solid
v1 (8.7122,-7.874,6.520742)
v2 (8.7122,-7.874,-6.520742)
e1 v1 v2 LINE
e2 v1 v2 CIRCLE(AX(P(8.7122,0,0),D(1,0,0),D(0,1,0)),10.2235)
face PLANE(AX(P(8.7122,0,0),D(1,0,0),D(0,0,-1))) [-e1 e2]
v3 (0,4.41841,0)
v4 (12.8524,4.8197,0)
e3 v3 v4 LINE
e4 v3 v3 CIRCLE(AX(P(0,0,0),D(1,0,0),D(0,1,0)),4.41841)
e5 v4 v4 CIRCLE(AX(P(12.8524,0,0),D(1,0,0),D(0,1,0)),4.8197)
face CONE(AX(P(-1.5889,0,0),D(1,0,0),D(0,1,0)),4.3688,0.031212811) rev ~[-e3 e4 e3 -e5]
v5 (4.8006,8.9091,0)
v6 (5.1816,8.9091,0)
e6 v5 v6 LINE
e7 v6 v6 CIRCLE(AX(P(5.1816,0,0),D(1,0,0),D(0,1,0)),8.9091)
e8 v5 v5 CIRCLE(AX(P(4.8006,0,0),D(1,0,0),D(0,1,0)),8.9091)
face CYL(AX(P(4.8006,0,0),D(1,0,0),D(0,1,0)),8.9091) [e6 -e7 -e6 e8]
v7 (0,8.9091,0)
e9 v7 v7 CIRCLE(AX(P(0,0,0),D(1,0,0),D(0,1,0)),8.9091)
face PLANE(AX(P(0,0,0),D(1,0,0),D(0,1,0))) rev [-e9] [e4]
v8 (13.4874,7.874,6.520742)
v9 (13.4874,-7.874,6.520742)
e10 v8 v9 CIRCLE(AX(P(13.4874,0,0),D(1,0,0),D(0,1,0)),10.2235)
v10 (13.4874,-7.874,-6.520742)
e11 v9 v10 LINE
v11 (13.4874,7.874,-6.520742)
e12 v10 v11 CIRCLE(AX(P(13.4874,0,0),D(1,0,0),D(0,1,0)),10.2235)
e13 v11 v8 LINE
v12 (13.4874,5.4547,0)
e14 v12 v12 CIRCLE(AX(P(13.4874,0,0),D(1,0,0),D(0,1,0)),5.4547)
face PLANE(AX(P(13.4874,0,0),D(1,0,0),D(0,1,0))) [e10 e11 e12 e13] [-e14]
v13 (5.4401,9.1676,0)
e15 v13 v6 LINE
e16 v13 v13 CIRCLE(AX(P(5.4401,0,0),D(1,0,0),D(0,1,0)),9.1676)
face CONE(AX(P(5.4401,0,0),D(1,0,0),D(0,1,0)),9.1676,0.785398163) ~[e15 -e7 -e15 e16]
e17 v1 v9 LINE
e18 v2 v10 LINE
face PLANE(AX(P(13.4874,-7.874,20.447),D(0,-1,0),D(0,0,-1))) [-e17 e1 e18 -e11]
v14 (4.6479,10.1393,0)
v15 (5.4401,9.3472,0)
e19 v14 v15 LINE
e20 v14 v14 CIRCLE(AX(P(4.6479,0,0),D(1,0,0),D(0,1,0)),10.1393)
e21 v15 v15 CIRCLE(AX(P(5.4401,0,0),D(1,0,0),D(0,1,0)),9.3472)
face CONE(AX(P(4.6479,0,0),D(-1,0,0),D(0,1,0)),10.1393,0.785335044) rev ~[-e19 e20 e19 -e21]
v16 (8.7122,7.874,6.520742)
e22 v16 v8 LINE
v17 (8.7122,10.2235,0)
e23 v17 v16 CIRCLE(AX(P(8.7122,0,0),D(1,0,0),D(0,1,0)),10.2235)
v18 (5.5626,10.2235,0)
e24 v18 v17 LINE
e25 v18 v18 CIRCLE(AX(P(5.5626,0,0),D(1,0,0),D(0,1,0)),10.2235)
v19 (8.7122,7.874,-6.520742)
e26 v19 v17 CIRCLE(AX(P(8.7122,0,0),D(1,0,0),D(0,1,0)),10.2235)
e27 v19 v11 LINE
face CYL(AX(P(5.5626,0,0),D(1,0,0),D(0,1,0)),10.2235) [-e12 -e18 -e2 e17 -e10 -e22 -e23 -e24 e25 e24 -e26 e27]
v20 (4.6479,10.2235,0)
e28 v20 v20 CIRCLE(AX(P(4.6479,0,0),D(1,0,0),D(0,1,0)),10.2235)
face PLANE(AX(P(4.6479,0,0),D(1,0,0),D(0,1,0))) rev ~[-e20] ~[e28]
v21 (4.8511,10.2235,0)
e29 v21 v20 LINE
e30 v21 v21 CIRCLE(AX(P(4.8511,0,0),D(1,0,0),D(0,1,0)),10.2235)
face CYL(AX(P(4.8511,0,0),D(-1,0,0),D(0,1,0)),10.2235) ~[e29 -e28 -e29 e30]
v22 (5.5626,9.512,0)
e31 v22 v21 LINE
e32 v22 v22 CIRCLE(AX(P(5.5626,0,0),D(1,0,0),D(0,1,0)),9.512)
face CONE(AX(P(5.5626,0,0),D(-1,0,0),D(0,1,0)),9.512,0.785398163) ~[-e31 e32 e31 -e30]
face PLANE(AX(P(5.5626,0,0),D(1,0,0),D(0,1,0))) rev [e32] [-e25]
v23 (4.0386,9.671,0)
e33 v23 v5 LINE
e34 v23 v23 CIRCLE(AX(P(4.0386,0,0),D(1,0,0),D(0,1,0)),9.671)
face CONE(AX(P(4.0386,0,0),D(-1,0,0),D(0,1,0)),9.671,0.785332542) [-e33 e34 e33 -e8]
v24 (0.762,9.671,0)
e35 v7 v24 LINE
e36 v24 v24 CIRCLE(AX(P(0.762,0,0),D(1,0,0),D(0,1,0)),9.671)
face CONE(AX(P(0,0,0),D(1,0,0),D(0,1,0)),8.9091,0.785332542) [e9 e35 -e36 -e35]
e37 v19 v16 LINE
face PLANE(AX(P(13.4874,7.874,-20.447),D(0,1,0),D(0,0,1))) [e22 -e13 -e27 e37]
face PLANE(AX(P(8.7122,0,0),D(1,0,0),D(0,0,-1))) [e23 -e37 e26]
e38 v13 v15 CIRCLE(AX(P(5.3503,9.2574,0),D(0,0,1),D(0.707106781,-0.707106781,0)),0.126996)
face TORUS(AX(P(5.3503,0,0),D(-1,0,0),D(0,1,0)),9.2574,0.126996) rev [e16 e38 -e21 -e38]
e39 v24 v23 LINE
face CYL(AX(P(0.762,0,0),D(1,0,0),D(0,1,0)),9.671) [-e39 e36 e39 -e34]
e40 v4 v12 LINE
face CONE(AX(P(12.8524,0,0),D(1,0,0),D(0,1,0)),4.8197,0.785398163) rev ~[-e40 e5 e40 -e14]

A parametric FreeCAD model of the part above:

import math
import FreeCAD as App
import Part
import Sketcher
from FreeCAD import Vector
Q = App.Units.Quantity

doc = App.newDocument("Part")
body = doc.addObject("PartDesign::Body", "Body")

# Sketch on XY plane
sketch1 = doc.addObject("Sketcher::SketchObject", "Sketch")
body.addObject(sketch1)
sketch1.AttachmentSupport = (doc.XY_Plane, [""])
sketch1.MapMode = "FlatFace"
sketch1.addGeometry([
    Part.LineSegment(Vector(0, 0, 0), Vector(13.5, 0, 0)),  # 0
    Part.LineSegment(Vector(13.5, 0, 0), Vector(13.5, 10.2, 0)),  # 1
    Part.LineSegment(Vector(13.5, 10.2, 0), Vector(5.6, 10.2, 0)),  # 2
    Part.LineSegment(Vector(5.6, 10.2, 0), Vector(5.6, 8.9, 0)),  # 3
    Part.LineSegment(Vector(5.6, 8.9, 0), Vector(4.8, 8.9, 0)),  # 4
    Part.LineSegment(Vector(4.8, 8.9, 0), Vector(4, 9.7, 0)),  # 5
    Part.LineSegment(Vector(4, 9.7, 0), Vector(0.8, 9.7, 0)),  # 6
    Part.LineSegment(Vector(0.8, 9.7, 0), Vector(0, 8.9, 0)),  # 7
    Part.LineSegment(Vector(0, 8.9, 0), Vector(0, 0, 0)),  # 8
], False)
sketch1.addConstraint([
    Sketcher.Constraint("Coincident", 0, 2, 1, 1),
    Sketcher.Constraint("Coincident", 1, 2, 2, 1),
    Sketcher.Constraint("Coincident", 2, 2, 3, 1),
    Sketcher.Constraint("Coincident", 3, 2, 4, 1),
    Sketcher.Constraint("Coincident", 4, 2, 5, 1),
    Sketcher.Constraint("Coincident", 5, 2, 6, 1),
    Sketcher.Constraint("Coincident", 6, 2, 7, 1),
    Sketcher.Constraint("Coincident", 7, 2, 8, 1),
    Sketcher.Constraint("Coincident", 8, 2, 0, 1),
    Sketcher.Constraint("Horizontal", 0),
    Sketcher.Constraint("Vertical", 1),
    Sketcher.Constraint("Horizontal", 2),
    Sketcher.Constraint("Vertical", 3),
    Sketcher.Constraint("Horizontal", 4),
    Sketcher.Constraint("Horizontal", 6),
    Sketcher.Constraint("Vertical", 8),
    Sketcher.Constraint("Coincident", 8, 2, -1, 1),
    Sketcher.Constraint("Perpendicular", 5, 7),
    Sketcher.Constraint("Horizontal", 4, 2, 7, 2),
    Sketcher.Constraint("Equal", 5, 7),
    Sketcher.Constraint("DistanceX", 4, 2, 4, 1, Q("0.03 in")),
    Sketcher.Constraint("DistanceX", 0, 1, 0, 2, Q("0.531 in")),
    Sketcher.Constraint("DistanceX", 2, 2, 2, 1, Q("0.312 in")),
    Sketcher.Constraint("DistanceX", 6, 2, 6, 1, Q("0.129 in")),
    Sketcher.Constraint("DistanceY", 1, 1, 1, 2, Q("0.4025 in")),
    Sketcher.Constraint("DistanceY", 3, 2, 3, 1, Q("1.3144 mm")),
])
revolution = doc.addObject("PartDesign::Revolution", "Revolution")
body.addObject(revolution)
revolution.Profile = sketch1
revolution.ReferenceAxis = (sketch1, ["H_Axis"])
revolution.Angle = 360

# Sketch on XY plane
sketch2 = doc.addObject("Sketcher::SketchObject", "Sketch001")
body.addObject(sketch2)
sketch2.AttachmentSupport = (doc.XY_Plane, [""])
sketch2.MapMode = "FlatFace"
sketch2.addGeometry([
    Part.LineSegment(Vector(0, 0, 0), Vector(13.5, 0, 0)),  # 0
    Part.LineSegment(Vector(13.5, 0, 0), Vector(13.5, 5.5, 0)),  # 1
    Part.LineSegment(Vector(13.5, 5.5, 0), Vector(12.9, 4.8, 0)),  # 2
    Part.LineSegment(Vector(12.9, 4.8, 0), Vector(-1.6, 4.4, 0)),  # 3
    Part.LineSegment(Vector(-1.6, 4.4, 0), Vector(0, 4.4, 0)),  # 4
    Part.LineSegment(Vector(0, 4.4, 0), Vector(0, 0, 0)),  # 5
], False)
sketch2.addConstraint([
    Sketcher.Constraint("Coincident", 0, 2, 1, 1),
    Sketcher.Constraint("Coincident", 1, 2, 2, 1),
    Sketcher.Constraint("Coincident", 2, 2, 3, 1),
    Sketcher.Constraint("Coincident", 3, 2, 4, 1),
    Sketcher.Constraint("Coincident", 4, 2, 5, 1),
    Sketcher.Constraint("Coincident", 5, 2, 0, 1),
    Sketcher.Constraint("Horizontal", 0),
    Sketcher.Constraint("Vertical", 1),
    Sketcher.Constraint("Horizontal", 4),
    Sketcher.Constraint("Vertical", 5),
    Sketcher.Constraint("Coincident", 5, 2, -1, 1),
    Sketcher.Constraint("Angle", 2, Q("-135 deg")),
    Sketcher.Constraint("DistanceX", 0, 1, 0, 2, Q("0.531 in")),
    Sketcher.Constraint("DistanceY", 5, 2, 5, 1, Q("0.172 in")),
    Sketcher.Constraint("DistanceX", -1, 1, 2, 2, Q("0.506 in")),
    Sketcher.Constraint("DistanceX", 4, 1, 4, 2, Q("1.589 mm")),
    Sketcher.Constraint("DistanceY", 1, 1, 1, 2, Q("5.4547 mm")),
])
groove = doc.addObject("PartDesign::Groove", "Groove")
body.addObject(groove)
groove.Profile = sketch2
groove.ReferenceAxis = (sketch2, ["H_Axis"])
groove.Angle = 360

# Sketch on YZ plane
sketch3 = doc.addObject("Sketcher::SketchObject", "Sketch002")
body.addObject(sketch3)
sketch3.AttachmentSupport = (doc.YZ_Plane, [""])
sketch3.MapMode = "FlatFace"
sketch3.AttachmentOffset = App.Placement(Vector(0, 0, 0.531 * 25.4), App.Rotation())
sketch3.addGeometry([
    Part.LineSegment(Vector(20, 41, 0), Vector(-20, 41, 0)),  # 0
    Part.LineSegment(Vector(-20, 41, 0), Vector(-20, -41, 0)),  # 1
    Part.LineSegment(Vector(-20, -41, 0), Vector(20, -41, 0)),  # 2
    Part.LineSegment(Vector(20, -41, 0), Vector(20, 41, 0)),  # 3
    Part.LineSegment(Vector(-8, -20, 0), Vector(-8, 20, 0)),  # 4
    Part.LineSegment(Vector(-8, 20, 0), Vector(8, 20, 0)),  # 5
    Part.LineSegment(Vector(8, 20, 0), Vector(8, -20, 0)),  # 6
    Part.LineSegment(Vector(8, -20, 0), Vector(-8, -20, 0)),  # 7
], False)
sketch3.addConstraint([
    Sketcher.Constraint("Coincident", 0, 2, 1, 1),
    Sketcher.Constraint("Coincident", 1, 2, 2, 1),
    Sketcher.Constraint("Coincident", 2, 2, 3, 1),
    Sketcher.Constraint("Coincident", 3, 2, 0, 1),
    Sketcher.Constraint("Coincident", 4, 2, 5, 1),
    Sketcher.Constraint("Coincident", 5, 2, 6, 1),
    Sketcher.Constraint("Coincident", 6, 2, 7, 1),
    Sketcher.Constraint("Coincident", 7, 2, 4, 1),
    Sketcher.Constraint("Horizontal", 0),
    Sketcher.Constraint("Vertical", 1),
    Sketcher.Constraint("Horizontal", 2),
    Sketcher.Constraint("Vertical", 3),
    Sketcher.Constraint("Vertical", 4),
    Sketcher.Constraint("Horizontal", 5),
    Sketcher.Constraint("Vertical", 6),
    Sketcher.Constraint("Horizontal", 7),
    Sketcher.Constraint("Symmetric", 0, 2, 2, 2, -1, 1),
    Sketcher.Constraint("Symmetric", 4, 2, 6, 2, -1, 1),
    Sketcher.Constraint("Equal", 2, 4),
    Sketcher.Constraint("DistanceX", 0, 2, 0, 1, Q("1.61 in")),
    Sketcher.Constraint("DistanceX", 5, 1, 5, 2, Q("0.62 in")),
    Sketcher.Constraint("DistanceY", 1, 2, 1, 1, Q("3.22 in")),
])
pocket1 = doc.addObject("PartDesign::Pocket", "Pocket")
body.addObject(pocket1)
pocket1.Profile = sketch3
pocket1.Length = Q("0.188 in")

# Sketch on XY plane
sketch4 = doc.addObject("Sketcher::SketchObject", "Sketch003")
body.addObject(sketch4)
sketch4.AttachmentSupport = (doc.XY_Plane, [""])
sketch4.MapMode = "FlatFace"
sketch4.addGeometry([
    Part.LineSegment(Vector(4.85, 10.22, 0), Vector(4.65, 10.22, 0)),  # 0
    Part.LineSegment(Vector(4.65, 10.22, 0), Vector(4.65, 10.14, 0)),  # 1
    Part.LineSegment(Vector(4.65, 10.14, 0), Vector(5.44, 9.35, 0)),  # 2
    Part.ArcOfCircle(Part.Circle(Vector(5.35, 9.26, 0), Vector(0, 0, 1), 0.13), math.radians(-45), math.radians(45)),  # 3
    Part.LineSegment(Vector(5.44, 9.17, 0), Vector(5.18, 8.91, 0)),  # 4
    Part.LineSegment(Vector(5.18, 8.91, 0), Vector(4.8, 8.91, 0)),  # 5
    Part.LineSegment(Vector(4.8, 8.91, 0), Vector(4.8, 8.65, 0)),  # 6
    Part.LineSegment(Vector(4.8, 8.65, 0), Vector(5.56, 8.65, 0)),  # 7
    Part.LineSegment(Vector(5.56, 8.65, 0), Vector(5.56, 9.51, 0)),  # 8
    Part.LineSegment(Vector(5.56, 9.51, 0), Vector(4.85, 10.22, 0)),  # 9
], False)
sketch4.addConstraint([
    Sketcher.Constraint("Coincident", 0, 2, 1, 1),
    Sketcher.Constraint("Coincident", 1, 2, 2, 1),
    Sketcher.Constraint("Tangent", 2, 2, 3, 2),
    Sketcher.Constraint("Tangent", 3, 1, 4, 1),
    Sketcher.Constraint("Coincident", 4, 2, 5, 1),
    Sketcher.Constraint("Coincident", 5, 2, 6, 1),
    Sketcher.Constraint("Coincident", 6, 2, 7, 1),
    Sketcher.Constraint("Coincident", 7, 2, 8, 1),
    Sketcher.Constraint("Coincident", 8, 2, 9, 1),
    Sketcher.Constraint("Coincident", 9, 2, 0, 1),
    Sketcher.Constraint("Horizontal", 0),
    Sketcher.Constraint("Vertical", 1),
    Sketcher.Constraint("Horizontal", 5),
    Sketcher.Constraint("Vertical", 6),
    Sketcher.Constraint("Horizontal", 7),
    Sketcher.Constraint("Vertical", 8),
    Sketcher.Constraint("Perpendicular", 2, 4),
    Sketcher.Constraint("Perpendicular", 4, 9),
    Sketcher.Constraint("Vertical", 2, 2, 3, 1),
    Sketcher.Constraint("Radius", 3, Q("0.005 in")),
    Sketcher.Constraint("DistanceX", 7, 1, 7, 2, Q("0.03 in")),
    Sketcher.Constraint("DistanceY", 6, 2, 6, 1, Q("0.01 in")),
    Sketcher.Constraint("DistanceX", 0, 2, 0, 1, Q("0.008 in")),
    Sketcher.Constraint("DistanceX", 5, 2, 5, 1, Q("0.015 in")),
    Sketcher.Constraint("DistanceX", -1, 1, 0, 2, Q("0.183 in")),
    Sketcher.Constraint("DistanceY", -1, 1, 2, 2, Q("0.368 in")),
    Sketcher.Constraint("DistanceX", -1, 1, 4, 2, Q("0.204 in")),
    Sketcher.Constraint("Distance", 2, Q("0.0441 in")),
    Sketcher.Constraint("DistanceY", 1, 2, 1, 1, Q("0.0842 mm")),
])
revolution2 = doc.addObject("PartDesign::Revolution", "Revolution001")
body.addObject(revolution2)
revolution2.Profile = sketch4
revolution2.ReferenceAxis = (sketch4, ["H_Axis"])
revolution2.Angle = 360

doc.recompute()
